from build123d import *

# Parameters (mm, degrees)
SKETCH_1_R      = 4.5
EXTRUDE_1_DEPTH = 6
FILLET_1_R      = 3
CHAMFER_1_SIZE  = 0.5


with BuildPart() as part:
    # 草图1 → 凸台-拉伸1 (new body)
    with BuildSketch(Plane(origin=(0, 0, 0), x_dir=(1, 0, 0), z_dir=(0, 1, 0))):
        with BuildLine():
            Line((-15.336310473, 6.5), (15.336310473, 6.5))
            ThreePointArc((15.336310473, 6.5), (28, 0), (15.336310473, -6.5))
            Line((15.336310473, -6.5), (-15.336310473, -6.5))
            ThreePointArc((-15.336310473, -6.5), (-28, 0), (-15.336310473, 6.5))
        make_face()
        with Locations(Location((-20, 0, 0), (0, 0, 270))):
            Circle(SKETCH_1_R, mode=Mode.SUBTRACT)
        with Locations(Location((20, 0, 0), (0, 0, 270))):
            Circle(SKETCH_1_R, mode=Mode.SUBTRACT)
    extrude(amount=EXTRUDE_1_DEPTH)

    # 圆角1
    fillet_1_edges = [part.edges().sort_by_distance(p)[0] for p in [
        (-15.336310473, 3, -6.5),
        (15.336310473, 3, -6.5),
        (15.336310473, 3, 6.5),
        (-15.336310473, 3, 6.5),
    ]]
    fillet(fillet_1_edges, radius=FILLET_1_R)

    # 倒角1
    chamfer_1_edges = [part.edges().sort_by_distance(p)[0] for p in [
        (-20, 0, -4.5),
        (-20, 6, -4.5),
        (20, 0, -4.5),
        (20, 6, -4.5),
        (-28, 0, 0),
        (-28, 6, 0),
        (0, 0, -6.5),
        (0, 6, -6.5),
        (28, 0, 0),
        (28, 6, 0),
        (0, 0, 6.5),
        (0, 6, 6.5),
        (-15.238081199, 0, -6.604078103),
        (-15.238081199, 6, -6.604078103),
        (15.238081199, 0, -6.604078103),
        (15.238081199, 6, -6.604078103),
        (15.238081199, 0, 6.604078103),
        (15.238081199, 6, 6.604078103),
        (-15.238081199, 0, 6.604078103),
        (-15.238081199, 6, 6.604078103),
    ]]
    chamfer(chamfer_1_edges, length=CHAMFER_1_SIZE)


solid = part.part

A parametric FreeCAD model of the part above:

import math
import FreeCAD as App
import Part
import Sketcher

V = App.Vector
Q = App.Units.Quantity


def edges_at(feature, points):
    """Names of the edges that pass closest to the given points."""
    edges = feature.Shape.Edges
    near = lambda p: min(range(len(edges)), key=lambda i: edges[i].distToShape(Part.Vertex(*p))[0])
    return sorted({f"Edge{near(p) + 1}" for p in points})

doc = App.newDocument("Part")
params = doc.addObject("Spreadsheet::Sheet", "Params")
for row, (alias, value) in enumerate([
    ("sketch1_diameter", "9 mm"),
    ("sketch1_radius", "8 mm"),
    ("pad1_length", "6 mm"),
    ("fillet_radius", "3 mm"),
    ("chamfer_size", "0.5 mm"),
], start=1):
    params.set(f"A{row}", alias)
    params.set(f"B{row}", "=" + value)
    params.setAlias(f"B{row}", alias)

body = doc.addObject("PartDesign::Body", "Body")

sketch1 = body.newObject("Sketcher::SketchObject", "Sketch")
sketch1.AttachmentSupport = (doc.getObject("XZ_Plane"), [""])
sketch1.MapMode = "FlatFace"
sketch1.addGeometry([
    Part.LineSegment(V(15.33631, -6.5, 0), V(-15.33631, -6.5, 0)),
    Part.ArcOfCircle(Part.Circle(V(-20, 0, 0), V(0, 0, 1), 8), math.radians(54.340912), math.radians(305.659088)),
    Part.LineSegment(V(-15.33631, 6.5, 0), V(15.33631, 6.5, 0)),
    Part.ArcOfCircle(Part.Circle(V(20, 0, 0), V(0, 0, 1), 8), math.radians(-125.659088), math.radians(125.659088)),
    Part.Circle(V(20, 0, 0), V(0, 0, 1), 4.5),
    Part.Circle(V(-20, 0, 0), V(0, 0, 1), 4.5),
], False)
sketch1.addConstraint([
    Sketcher.Constraint("Coincident", 0, 2, 1, 2),
    Sketcher.Constraint("Coincident", 1, 1, 2, 1),
    Sketcher.Constraint("Coincident", 2, 2, 3, 2),
    Sketcher.Constraint("Coincident", 3, 1, 0, 1),
    Sketcher.Constraint("Horizontal", 0),
    Sketcher.Constraint("Horizontal", 2),
    Sketcher.Constraint("Coincident", 4, 3, 3, 3),
    Sketcher.Constraint("Coincident", 5, 3, 1, 3),
    Sketcher.Constraint("Equal", 1, 3),
    Sketcher.Constraint("Equal", 4, 5),
    Sketcher.Constraint("Symmetric", 1, 3, 3, 3, -1, 1),
    Sketcher.Constraint("Symmetric", 0, 2, 1, 1, -1),
    Sketcher.Constraint("Diameter", 4, Q("9 mm")),
    Sketcher.Constraint("Radius", 1, Q("8 mm")),
    Sketcher.Constraint("DistanceX", 1, 3, -1, 1, Q("20 mm")),
    Sketcher.Constraint("DistanceY", 0, 2, 1, 1, Q("13 mm")),
])
sketch1.setExpression("Constraints[12]", "Params.sketch1_diameter")
sketch1.setExpression("Constraints[13]", "Params.sketch1_radius")
pad1 = body.newObject("PartDesign::Pad", "Pad")
pad1.Profile = sketch1
pad1.setExpression("Length", "Params.pad1_length")
pad1.Reversed = True
doc.recompute()

fillet = body.newObject("PartDesign::Fillet", "Fillet")
fillet.Base = (pad1, edges_at(pad1, [
    (-15.336, 3, -6.5),
    (15.336, 3, -6.5),
    (15.336, 3, 6.5),
    (-15.336, 3, 6.5),
]))
fillet.setExpression("Radius", "Params.fillet_radius")
doc.recompute()

chamfer = body.newObject("PartDesign::Chamfer", "Chamfer")
chamfer.Base = (fillet, edges_at(fillet, [
    (-20, 0, -4.5),
    (-20, 6, -4.5),
    (20, 0, -4.5),
    (20, 6, -4.5),
    (-28, 0, 0),
    (-28, 6, 0),
    (0, 0, -6.5),
    (0, 6, -6.5),
    (28, 0, 0),
    (28, 6, 0),
    (0, 0, 6.5),
    (0, 6, 6.5),
    (-15.238, 0, -6.604),
    (-15.238, 6, -6.604),
    (15.238, 0, -6.604),
    (15.238, 6, -6.604),
    (15.238, 0, 6.604),
    (15.238, 6, 6.604),
    (-15.238, 0, 6.604),
    (-15.238, 6, 6.604),
]))
chamfer.setExpression("Size", "Params.chamfer_size")

doc.recompute()
